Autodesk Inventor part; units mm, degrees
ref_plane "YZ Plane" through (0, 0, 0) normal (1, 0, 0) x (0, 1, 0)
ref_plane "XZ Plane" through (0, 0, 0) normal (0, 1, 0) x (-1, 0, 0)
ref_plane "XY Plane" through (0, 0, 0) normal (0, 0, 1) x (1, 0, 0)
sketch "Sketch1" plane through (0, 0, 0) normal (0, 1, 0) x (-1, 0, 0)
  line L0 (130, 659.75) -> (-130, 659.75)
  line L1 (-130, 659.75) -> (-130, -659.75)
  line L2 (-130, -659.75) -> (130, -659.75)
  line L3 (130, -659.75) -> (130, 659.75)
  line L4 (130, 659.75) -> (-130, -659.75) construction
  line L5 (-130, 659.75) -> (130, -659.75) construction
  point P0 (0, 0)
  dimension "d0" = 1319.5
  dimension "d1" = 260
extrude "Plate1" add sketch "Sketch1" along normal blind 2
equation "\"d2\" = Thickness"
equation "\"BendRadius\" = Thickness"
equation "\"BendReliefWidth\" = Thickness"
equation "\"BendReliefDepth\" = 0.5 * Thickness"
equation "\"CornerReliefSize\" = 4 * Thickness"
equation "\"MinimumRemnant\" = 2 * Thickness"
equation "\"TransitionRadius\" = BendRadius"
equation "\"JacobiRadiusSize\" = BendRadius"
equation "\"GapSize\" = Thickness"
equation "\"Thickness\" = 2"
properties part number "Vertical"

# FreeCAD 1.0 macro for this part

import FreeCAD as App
import Part
import Sketcher

V = App.Vector
Q = App.Units.Quantity


def add_polygon(sketch, points):
    """Adds a closed chain of lines whose ends are joined by coincident constraints."""
    first, n = sketch.GeometryCount, len(points)
    for a, b in zip(points, points[1:] + points[:1]):
        sketch.addGeometry(Part.LineSegment(App.Vector(*a, 0), App.Vector(*b, 0)), False)
    for i in range(n):
        sketch.addConstraint(Sketcher.Constraint("Coincident", first + i, 2, first + (i + 1) % n, 1))

doc = App.newDocument("Part")
body = doc.addObject("PartDesign::Body", "Body")

sketch1 = body.newObject("Sketcher::SketchObject", "Sketch")
sketch1.AttachmentSupport = (doc.getObject("XZ_Plane"), [""])
sketch1.MapMode = "FlatFace"
add_polygon(sketch1, [(-130, -659.75), (-130, 659.75), (130, 659.75), (130, -659.75)])
sketch1.addConstraint(Sketcher.Constraint("Vertical", 0))
sketch1.addConstraint(Sketcher.Constraint("Horizontal", 1))
sketch1.addConstraint(Sketcher.Constraint("Vertical", 2))
sketch1.addConstraint(Sketcher.Constraint("Horizontal", 3))
sketch1.addConstraint(Sketcher.Constraint("Symmetric", 0, 2, 2, 2, -1, 1))
sketch1.addConstraint(Sketcher.Constraint("DistanceX", 1, 1, 1, 2, Q("260 mm")))
sketch1.addConstraint(Sketcher.Constraint("DistanceY", 0, 1, 0, 2, Q("1319.5 mm")))
pad1 = body.newObject("PartDesign::Pad", "Pad")
pad1.Profile = sketch1
pad1.Length = 2
pad1.Reversed = True

doc.recompute()
